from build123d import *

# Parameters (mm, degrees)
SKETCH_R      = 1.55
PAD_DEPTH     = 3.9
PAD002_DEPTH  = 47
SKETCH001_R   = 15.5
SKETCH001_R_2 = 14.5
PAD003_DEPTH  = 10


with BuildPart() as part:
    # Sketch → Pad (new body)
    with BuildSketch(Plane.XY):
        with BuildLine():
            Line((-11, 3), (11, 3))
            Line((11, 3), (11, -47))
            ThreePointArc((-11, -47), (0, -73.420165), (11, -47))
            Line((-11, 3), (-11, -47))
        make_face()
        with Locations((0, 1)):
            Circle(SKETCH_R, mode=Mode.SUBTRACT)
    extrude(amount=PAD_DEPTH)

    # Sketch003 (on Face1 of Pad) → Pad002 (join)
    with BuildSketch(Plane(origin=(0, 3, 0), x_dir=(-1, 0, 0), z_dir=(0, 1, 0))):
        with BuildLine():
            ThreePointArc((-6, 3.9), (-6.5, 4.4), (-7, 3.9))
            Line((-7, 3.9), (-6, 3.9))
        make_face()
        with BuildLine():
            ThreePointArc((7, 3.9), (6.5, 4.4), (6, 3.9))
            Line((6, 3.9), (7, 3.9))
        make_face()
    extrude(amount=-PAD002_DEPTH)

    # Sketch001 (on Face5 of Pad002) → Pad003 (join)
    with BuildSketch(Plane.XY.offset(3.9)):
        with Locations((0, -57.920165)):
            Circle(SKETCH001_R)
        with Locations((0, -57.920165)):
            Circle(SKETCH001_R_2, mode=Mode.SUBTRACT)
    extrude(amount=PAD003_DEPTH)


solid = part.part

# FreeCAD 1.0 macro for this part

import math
import FreeCAD as App
import Part
import Sketcher
from FreeCAD import Vector
Q = App.Units.Quantity

doc = App.newDocument("Part")
body = doc.addObject("PartDesign::Body", "Body")

# Sketch on XY plane
sketch1 = doc.addObject("Sketcher::SketchObject", "Sketch")
body.addObject(sketch1)
sketch1.AttachmentSupport = (doc.XY_Plane, [""])
sketch1.MapMode = "FlatFace"
sketch1.addGeometry([
    Part.LineSegment(Vector(11, 3, 0), Vector(-11, 3, 0)),  # 0
    Part.LineSegment(Vector(-11, 3, 0), Vector(-11, -47, 0)),  # 1
    Part.ArcOfCircle(Part.Circle(Vector(0, -57.9, 0), Vector(0, 0, 1), 15.5), math.radians(135), math.radians(405)),  # 2
    Part.LineSegment(Vector(11, -47, 0), Vector(11, 3, 0)),  # 3
    Part.Circle(Vector(0, 1, 0), Vector(0, 0, 1), 1.6),  # 4
], False)
sketch1.addConstraint([
    Sketcher.Constraint("Coincident", 0, 2, 1, 1),
    Sketcher.Constraint("Coincident", 1, 2, 2, 1),
    Sketcher.Constraint("Coincident", 2, 2, 3, 1),
    Sketcher.Constraint("Coincident", 3, 2, 0, 1),
    Sketcher.Constraint("Horizontal", 0),
    Sketcher.Constraint("Vertical", 1),
    Sketcher.Constraint("Vertical", 3),
    Sketcher.Constraint("Symmetric", 1, 2, 2, 2, -2),
    Sketcher.Constraint("PointOnObject", 4, 3, -2),
    Sketcher.Constraint("Diameter", 4, Q("3.1 mm")),
    Sketcher.Constraint("Radius", 2, Q("15.5 mm")),
    Sketcher.Constraint("DistanceX", 0, 2, 0, 1, Q("22 mm")),
    Sketcher.Constraint("DistanceY", 1, 2, 1, 1, Q("50 mm")),
    Sketcher.Constraint("DistanceY", -1, 1, 4, 3, Q("1 mm")),
    Sketcher.Constraint("DistanceY", -1, 1, 0, 2, Q("3 mm")),
])
pad1 = doc.addObject("PartDesign::Pad", "Pad")
body.addObject(pad1)
pad1.Profile = sketch1
pad1.Length = 3.9

# Sketch on XZ plane
sketch2 = doc.addObject("Sketcher::SketchObject", "Sketch001")
body.addObject(sketch2)
sketch2.AttachmentSupport = (doc.XZ_Plane, [""])
sketch2.MapMode = "FlatFace"
sketch2.AttachmentOffset = App.Placement(Vector(0, 0, -3), App.Rotation())
sketch2.addGeometry([
    Part.ArcOfCircle(Part.Circle(Vector(6.5, 3.9, 0), Vector(0, 0, 1), 0.5), math.radians(0), math.radians(180)),
    Part.LineSegment(Vector(7, 3.9, 0), Vector(6, 3.9, 0)),
    Part.ArcOfCircle(Part.Circle(Vector(-6.5, 3.9, 0), Vector(0, 0, 1), 0.5), math.radians(0), math.radians(180)),
    Part.LineSegment(Vector(-6, 3.9, 0), Vector(-7, 3.9, 0)),
], False)
sketch2.addConstraint([
    Sketcher.Constraint("Coincident", 0, 1, 1, 1),
    Sketcher.Constraint("Coincident", 1, 2, 0, 2),
    Sketcher.Constraint("Coincident", 2, 1, 3, 1),
    Sketcher.Constraint("Coincident", 3, 2, 2, 2),
    Sketcher.Constraint("Horizontal", 1),
    Sketcher.Constraint("Horizontal", 3),
    Sketcher.Constraint("Equal", 0, 2),
    Sketcher.Constraint("Symmetric", 0, 3, 2, 3, -2),
    Sketcher.Constraint("Horizontal", 2, 3, 0, 1),
    Sketcher.Constraint("Horizontal", 1, 2, 2, 1),
    Sketcher.Constraint("Radius", 0, Q("0.5 mm")),
    Sketcher.Constraint("DistanceX", -1, 1, 0, 1, Q("7 mm")),
    Sketcher.Constraint("DistanceY", -1, 1, 0, 3, Q("3.9 mm")),
])
pad2 = doc.addObject("PartDesign::Pad", "Pad001")
body.addObject(pad2)
pad2.Profile = sketch2
pad2.Length = 47

# Sketch on XY plane
sketch3 = doc.addObject("Sketcher::SketchObject", "Sketch002")
body.addObject(sketch3)
sketch3.AttachmentSupport = (doc.XY_Plane, [""])
sketch3.MapMode = "FlatFace"
sketch3.AttachmentOffset = App.Placement(Vector(0, 0, 3.9), App.Rotation())
sketch3.addGeometry([
    Part.Circle(Vector(0, -58, 0), Vector(0, 0, 1), 16),
    Part.Circle(Vector(0, -58, 0), Vector(0, 0, 1), 14),
], False)
sketch3.addConstraint([
    Sketcher.Constraint("Coincident", 1, 3, 0, 3),
    Sketcher.Constraint("PointOnObject", 0, 3, -2),
    Sketcher.Constraint("Diameter", 0, Q("31 mm")),
    Sketcher.Constraint("Diameter", 1, Q("29 mm")),
    Sketcher.Constraint("DistanceY", 0, 3, -1, 1, Q("57.920165 mm")),
])
pad3 = doc.addObject("PartDesign::Pad", "Pad002")
body.addObject(pad3)
pad3.Profile = sketch3
pad3.Length = 10

doc.recompute()
